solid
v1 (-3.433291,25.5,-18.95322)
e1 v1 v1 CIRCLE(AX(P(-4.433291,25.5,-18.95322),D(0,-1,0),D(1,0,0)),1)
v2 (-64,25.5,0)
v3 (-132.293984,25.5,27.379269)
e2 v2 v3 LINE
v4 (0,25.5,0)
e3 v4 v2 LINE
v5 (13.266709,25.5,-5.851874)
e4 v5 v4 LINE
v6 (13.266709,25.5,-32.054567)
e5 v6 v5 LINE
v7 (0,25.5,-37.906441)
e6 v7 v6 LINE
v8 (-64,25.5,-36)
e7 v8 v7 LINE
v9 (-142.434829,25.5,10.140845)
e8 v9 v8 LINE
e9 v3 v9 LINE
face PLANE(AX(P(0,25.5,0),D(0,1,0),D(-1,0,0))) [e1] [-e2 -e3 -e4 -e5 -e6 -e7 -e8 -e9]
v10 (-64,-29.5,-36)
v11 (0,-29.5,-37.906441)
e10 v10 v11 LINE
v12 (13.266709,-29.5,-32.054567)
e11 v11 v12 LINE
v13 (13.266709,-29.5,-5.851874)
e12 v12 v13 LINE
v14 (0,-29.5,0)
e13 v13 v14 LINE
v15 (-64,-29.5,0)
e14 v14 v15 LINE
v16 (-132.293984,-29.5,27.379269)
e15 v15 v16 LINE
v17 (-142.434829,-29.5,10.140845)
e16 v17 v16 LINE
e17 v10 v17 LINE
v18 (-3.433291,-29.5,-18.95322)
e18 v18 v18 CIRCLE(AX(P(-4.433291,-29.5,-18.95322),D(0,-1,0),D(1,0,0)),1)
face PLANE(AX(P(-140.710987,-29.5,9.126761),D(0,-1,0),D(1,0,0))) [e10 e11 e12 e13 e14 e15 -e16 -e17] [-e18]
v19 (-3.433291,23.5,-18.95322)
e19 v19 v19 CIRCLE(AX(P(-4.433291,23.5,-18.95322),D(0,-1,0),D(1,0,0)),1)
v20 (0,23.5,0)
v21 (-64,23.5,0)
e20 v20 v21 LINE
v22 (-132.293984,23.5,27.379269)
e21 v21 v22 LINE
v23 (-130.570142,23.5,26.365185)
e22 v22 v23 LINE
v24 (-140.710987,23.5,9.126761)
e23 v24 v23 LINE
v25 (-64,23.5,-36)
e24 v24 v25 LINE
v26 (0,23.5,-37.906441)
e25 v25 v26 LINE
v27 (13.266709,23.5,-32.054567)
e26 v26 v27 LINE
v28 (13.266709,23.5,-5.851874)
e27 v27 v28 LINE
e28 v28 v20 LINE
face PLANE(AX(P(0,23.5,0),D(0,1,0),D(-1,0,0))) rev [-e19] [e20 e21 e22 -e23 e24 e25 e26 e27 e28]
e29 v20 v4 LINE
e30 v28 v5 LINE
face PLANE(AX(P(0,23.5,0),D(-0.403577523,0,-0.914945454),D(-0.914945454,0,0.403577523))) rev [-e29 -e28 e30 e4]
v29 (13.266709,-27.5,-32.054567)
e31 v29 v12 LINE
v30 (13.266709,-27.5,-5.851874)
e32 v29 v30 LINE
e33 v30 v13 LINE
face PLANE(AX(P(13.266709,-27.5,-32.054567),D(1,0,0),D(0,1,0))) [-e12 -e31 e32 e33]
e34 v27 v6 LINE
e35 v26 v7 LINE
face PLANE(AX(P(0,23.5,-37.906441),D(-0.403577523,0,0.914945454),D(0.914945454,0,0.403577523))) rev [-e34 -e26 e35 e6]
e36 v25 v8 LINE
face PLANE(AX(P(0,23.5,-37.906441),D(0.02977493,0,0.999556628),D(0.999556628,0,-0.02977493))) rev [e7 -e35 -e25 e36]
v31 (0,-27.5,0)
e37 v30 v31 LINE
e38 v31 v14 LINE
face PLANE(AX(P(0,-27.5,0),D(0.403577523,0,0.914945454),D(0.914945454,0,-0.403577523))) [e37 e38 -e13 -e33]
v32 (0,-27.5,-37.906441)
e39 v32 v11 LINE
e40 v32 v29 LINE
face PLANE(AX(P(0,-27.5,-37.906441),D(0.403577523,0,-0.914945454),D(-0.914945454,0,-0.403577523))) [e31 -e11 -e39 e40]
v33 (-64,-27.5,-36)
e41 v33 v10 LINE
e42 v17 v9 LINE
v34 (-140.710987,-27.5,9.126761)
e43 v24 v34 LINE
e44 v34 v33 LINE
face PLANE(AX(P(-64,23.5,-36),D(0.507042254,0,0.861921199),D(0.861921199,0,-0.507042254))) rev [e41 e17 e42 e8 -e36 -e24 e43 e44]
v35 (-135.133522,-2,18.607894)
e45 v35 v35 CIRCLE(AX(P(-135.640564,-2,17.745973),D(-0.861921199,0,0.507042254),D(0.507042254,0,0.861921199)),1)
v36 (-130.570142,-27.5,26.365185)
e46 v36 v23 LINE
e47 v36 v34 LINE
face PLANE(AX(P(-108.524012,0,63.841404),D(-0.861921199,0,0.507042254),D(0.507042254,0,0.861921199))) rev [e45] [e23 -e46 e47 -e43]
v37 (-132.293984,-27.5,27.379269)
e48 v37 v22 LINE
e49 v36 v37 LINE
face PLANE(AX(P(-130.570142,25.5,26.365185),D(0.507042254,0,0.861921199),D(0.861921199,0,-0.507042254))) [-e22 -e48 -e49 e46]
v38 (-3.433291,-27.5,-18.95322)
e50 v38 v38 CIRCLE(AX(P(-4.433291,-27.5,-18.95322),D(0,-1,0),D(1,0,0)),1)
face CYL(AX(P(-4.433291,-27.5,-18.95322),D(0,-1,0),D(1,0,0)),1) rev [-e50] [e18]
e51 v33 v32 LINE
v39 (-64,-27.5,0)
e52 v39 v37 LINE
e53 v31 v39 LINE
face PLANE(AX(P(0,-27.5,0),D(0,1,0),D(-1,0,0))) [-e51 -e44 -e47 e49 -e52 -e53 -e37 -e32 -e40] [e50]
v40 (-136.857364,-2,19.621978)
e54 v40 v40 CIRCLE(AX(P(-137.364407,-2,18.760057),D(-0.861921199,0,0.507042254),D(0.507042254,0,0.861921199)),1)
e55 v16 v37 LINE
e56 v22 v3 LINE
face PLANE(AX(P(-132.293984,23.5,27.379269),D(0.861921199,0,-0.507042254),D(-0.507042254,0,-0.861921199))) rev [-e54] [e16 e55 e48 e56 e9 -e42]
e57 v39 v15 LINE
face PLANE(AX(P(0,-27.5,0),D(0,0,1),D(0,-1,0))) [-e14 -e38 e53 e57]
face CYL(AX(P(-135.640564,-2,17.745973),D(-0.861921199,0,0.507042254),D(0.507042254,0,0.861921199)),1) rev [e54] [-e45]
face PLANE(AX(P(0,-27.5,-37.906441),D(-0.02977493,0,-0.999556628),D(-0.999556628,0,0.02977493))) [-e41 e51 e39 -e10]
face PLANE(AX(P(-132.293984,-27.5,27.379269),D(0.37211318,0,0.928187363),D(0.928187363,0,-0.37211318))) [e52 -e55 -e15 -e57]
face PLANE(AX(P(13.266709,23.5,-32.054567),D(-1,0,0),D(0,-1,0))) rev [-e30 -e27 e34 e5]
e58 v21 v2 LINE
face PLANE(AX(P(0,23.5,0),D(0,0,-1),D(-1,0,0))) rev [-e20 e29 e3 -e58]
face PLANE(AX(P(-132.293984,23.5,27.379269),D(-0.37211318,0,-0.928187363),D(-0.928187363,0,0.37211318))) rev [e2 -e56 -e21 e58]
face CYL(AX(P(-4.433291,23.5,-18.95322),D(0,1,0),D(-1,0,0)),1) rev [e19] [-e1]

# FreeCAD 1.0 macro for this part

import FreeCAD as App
import Part
import Sketcher
from FreeCAD import Vector


def add_polygon(sketch, points):
    """Adds a closed chain of lines whose ends are joined by coincident constraints."""
    first, n = sketch.GeometryCount, len(points)
    for a, b in zip(points, points[1:] + points[:1]):
        sketch.addGeometry(Part.LineSegment(App.Vector(*a, 0), App.Vector(*b, 0)), False)
    for i in range(n):
        sketch.addConstraint(Sketcher.Constraint("Coincident", first + i, 2, first + (i + 1) % n, 1))

doc = App.newDocument("Part")
body = doc.addObject("PartDesign::Body", "Body")

# Sketch on XZ plane
sketch1 = body.newObject("Sketcher::SketchObject", "Sketch")
sketch1.AttachmentSupport = (doc.getObject("XZ_Plane"), [""])
sketch1.MapMode = "FlatFace"
sketch1.AttachmentOffset = App.Placement(Vector(0, 0, -25.5), App.Rotation())
add_polygon(sketch1, [(0, -38), (13, -32), (13, -6), (0, 0), (-64, 0), (-132, 27), (-142, 10), (-64, -36)])  # lines 0-7
sketch1.addConstraint([
    Sketcher.Constraint("Vertical", 1),
    Sketcher.Constraint("Horizontal", 3),
    Sketcher.Constraint("Coincident", 2, 2, -1, 1),
    Sketcher.Constraint("PointOnObject", 7, 2, -2),
    Sketcher.Constraint("Perpendicular", 5, 6),
    Sketcher.Constraint("Vertical", 3, 2, 6, 2),
    Sketcher.Constraint("Equal", 0, 2),
    Sketcher.Constraint("DistanceX", 3, 2, 3, 1, 64.0),
    Sketcher.Constraint("Distance", 5, 20.0),
    Sketcher.Constraint("Distance", 6, 91.0),
    Sketcher.Constraint("DistanceY", 6, 2, -1, 1, 36.0),
    Sketcher.Constraint("Distance", 0, 14.5),
    Sketcher.Constraint("Distance", 4, 73.5778),
    Sketcher.Constraint("Distance", 7, 64.028388),
    Sketcher.Constraint("DistanceY", 1, 1, 1, 2, 26.202693),
])
pad1 = body.newObject("PartDesign::Pad", "Pad")
pad1.Profile = sketch1
pad1.Length = 2

# Sketch on XZ plane
sketch2 = body.newObject("Sketcher::SketchObject", "Sketch001")
sketch2.AttachmentSupport = (doc.getObject("XZ_Plane"), [""])
sketch2.MapMode = "FlatFace"
sketch2.AttachmentOffset = App.Placement(Vector(0, 0, -25.5), App.Rotation())
sketch2.addGeometry(Part.Circle(Vector(-4.4, -19, 0), Vector(0, 0, 1), 1), False)
sketch2.addConstraint([
    Sketcher.Constraint("Diameter", 0, 2.0),
    Sketcher.Constraint("DistanceX", 0, 3, -1, 1, 4.433291),
    Sketcher.Constraint("DistanceY", 0, 3, -1, 1, 18.95322),
])
pocket1 = body.newObject("PartDesign::Pocket", "Pocket")
pocket1.Profile = sketch2
pocket1.Length = 2
pocket1.Reversed = True

# Sketch on an angled plane
sketch3 = body.newObject("Sketcher::SketchObject", "Sketch002")
sketch3.Placement = App.Placement(Vector(-110.247854, 0, 64.855488), App.Rotation(Vector(0.507042254, 0, 0.861921199), Vector(0, 1.000000001, 0), Vector(-0.861921199, 0, 0.507042254), "ZXY"))
add_polygon(sketch3, [(-63, 26), (-63, -30), (-43, -30), (-43, 26)])  # lines 0-3
sketch3.addConstraint([
    Sketcher.Constraint("Vertical", 0),
    Sketcher.Constraint("Horizontal", 1),
    Sketcher.Constraint("Vertical", 2),
    Sketcher.Constraint("Horizontal", 3),
    Sketcher.Constraint("DistanceX", 1, 1, 1, 2, 20.0),
    Sketcher.Constraint("DistanceY", 0, 2, 0, 1, 55.0),
    Sketcher.Constraint("DistanceY", 0, 2, -1, 1, 29.5),
    Sketcher.Constraint("DistanceX", 0, 2, -1, 1, 63.479867),
])
pad2 = body.newObject("PartDesign::Pad", "Pad001")
pad2.Profile = sketch3
pad2.Length = 2
pad2.Reversed = True

# Sketch on XZ plane
sketch4 = body.newObject("Sketcher::SketchObject", "Sketch003")
sketch4.AttachmentSupport = (doc.getObject("XZ_Plane"), [""])
sketch4.MapMode = "FlatFace"
sketch4.AttachmentOffset = App.Placement(Vector(0, 0, 29.5), App.Rotation())
add_polygon(sketch4, [(0, 0), (-64, 0), (-132, 27), (-142, 10), (-64, -36), (0, -38), (13, -32), (13, -6)])  # lines 0-7
sketch4.addConstraint([
    Sketcher.Constraint("Horizontal", 0),
    Sketcher.Constraint("Vertical", 6),
    Sketcher.Constraint("Coincident", 7, 2, -1, 1),
    Sketcher.Constraint("PointOnObject", 4, 2, -2),
    Sketcher.Constraint("Perpendicular", 2, 3),
    Sketcher.Constraint("Vertical", 0, 2, 3, 2),
    Sketcher.Constraint("Equal", 5, 7),
    Sketcher.Constraint("DistanceX", 0, 2, 0, 1, 64.0),
    Sketcher.Constraint("Distance", 2, 20.0),
    Sketcher.Constraint("Distance", 3, 91.0),
    Sketcher.Constraint("DistanceY", 3, 2, -1, 1, 36.0),
    Sketcher.Constraint("Distance", 5, 14.5),
    Sketcher.Constraint("Distance", 1, 73.5778),
    Sketcher.Constraint("Distance", 4, 64.028388),
    Sketcher.Constraint("DistanceY", 6, 1, 6, 2, 26.202693),
])
pad3 = body.newObject("PartDesign::Pad", "Pad002")
pad3.Profile = sketch4
pad3.Length = 2
pad3.Reversed = True

# Sketch on XZ plane
sketch5 = body.newObject("Sketcher::SketchObject", "Sketch004")
sketch5.AttachmentSupport = (doc.getObject("XZ_Plane"), [""])
sketch5.MapMode = "FlatFace"
sketch5.AttachmentOffset = App.Placement(Vector(0, 0, 29.5), App.Rotation())
sketch5.addGeometry(Part.Circle(Vector(-4.4, -19, 0), Vector(0, 0, 1), 1), False)
sketch5.addConstraint([
    Sketcher.Constraint("Diameter", 0, 2.0),
    Sketcher.Constraint("DistanceX", 0, 3, -1, 1, 4.433291),
    Sketcher.Constraint("DistanceY", 0, 3, -1, 1, 18.95322),
])
pocket2 = body.newObject("PartDesign::Pocket", "Pocket001")
pocket2.Profile = sketch5
pocket2.Length = 2

# Sketch on an angled plane
sketch6 = body.newObject("Sketcher::SketchObject", "Sketch005")
sketch6.Placement = App.Placement(Vector(-110.247854, 0, 64.855488), App.Rotation(Vector(0.507042254, 0, 0.861921199), Vector(0, 1.000000001, 0), Vector(-0.861921199, 0, 0.507042254), "ZXY"))
sketch6.addGeometry(Part.Circle(Vector(-53.5, -2, 0), Vector(0, 0, 1), 1), False)
sketch6.addConstraint([
    Sketcher.Constraint("Diameter", 0, 2.0),
    Sketcher.Constraint("DistanceY", 0, 3, -1, 1, 2.0),
    Sketcher.Constraint("DistanceX", 0, 3, -1, 1, 53.479867),
])
pocket3 = body.newObject("PartDesign::Pocket", "Pocket002")
pocket3.Profile = sketch6
pocket3.Length = 2

doc.recompute()
